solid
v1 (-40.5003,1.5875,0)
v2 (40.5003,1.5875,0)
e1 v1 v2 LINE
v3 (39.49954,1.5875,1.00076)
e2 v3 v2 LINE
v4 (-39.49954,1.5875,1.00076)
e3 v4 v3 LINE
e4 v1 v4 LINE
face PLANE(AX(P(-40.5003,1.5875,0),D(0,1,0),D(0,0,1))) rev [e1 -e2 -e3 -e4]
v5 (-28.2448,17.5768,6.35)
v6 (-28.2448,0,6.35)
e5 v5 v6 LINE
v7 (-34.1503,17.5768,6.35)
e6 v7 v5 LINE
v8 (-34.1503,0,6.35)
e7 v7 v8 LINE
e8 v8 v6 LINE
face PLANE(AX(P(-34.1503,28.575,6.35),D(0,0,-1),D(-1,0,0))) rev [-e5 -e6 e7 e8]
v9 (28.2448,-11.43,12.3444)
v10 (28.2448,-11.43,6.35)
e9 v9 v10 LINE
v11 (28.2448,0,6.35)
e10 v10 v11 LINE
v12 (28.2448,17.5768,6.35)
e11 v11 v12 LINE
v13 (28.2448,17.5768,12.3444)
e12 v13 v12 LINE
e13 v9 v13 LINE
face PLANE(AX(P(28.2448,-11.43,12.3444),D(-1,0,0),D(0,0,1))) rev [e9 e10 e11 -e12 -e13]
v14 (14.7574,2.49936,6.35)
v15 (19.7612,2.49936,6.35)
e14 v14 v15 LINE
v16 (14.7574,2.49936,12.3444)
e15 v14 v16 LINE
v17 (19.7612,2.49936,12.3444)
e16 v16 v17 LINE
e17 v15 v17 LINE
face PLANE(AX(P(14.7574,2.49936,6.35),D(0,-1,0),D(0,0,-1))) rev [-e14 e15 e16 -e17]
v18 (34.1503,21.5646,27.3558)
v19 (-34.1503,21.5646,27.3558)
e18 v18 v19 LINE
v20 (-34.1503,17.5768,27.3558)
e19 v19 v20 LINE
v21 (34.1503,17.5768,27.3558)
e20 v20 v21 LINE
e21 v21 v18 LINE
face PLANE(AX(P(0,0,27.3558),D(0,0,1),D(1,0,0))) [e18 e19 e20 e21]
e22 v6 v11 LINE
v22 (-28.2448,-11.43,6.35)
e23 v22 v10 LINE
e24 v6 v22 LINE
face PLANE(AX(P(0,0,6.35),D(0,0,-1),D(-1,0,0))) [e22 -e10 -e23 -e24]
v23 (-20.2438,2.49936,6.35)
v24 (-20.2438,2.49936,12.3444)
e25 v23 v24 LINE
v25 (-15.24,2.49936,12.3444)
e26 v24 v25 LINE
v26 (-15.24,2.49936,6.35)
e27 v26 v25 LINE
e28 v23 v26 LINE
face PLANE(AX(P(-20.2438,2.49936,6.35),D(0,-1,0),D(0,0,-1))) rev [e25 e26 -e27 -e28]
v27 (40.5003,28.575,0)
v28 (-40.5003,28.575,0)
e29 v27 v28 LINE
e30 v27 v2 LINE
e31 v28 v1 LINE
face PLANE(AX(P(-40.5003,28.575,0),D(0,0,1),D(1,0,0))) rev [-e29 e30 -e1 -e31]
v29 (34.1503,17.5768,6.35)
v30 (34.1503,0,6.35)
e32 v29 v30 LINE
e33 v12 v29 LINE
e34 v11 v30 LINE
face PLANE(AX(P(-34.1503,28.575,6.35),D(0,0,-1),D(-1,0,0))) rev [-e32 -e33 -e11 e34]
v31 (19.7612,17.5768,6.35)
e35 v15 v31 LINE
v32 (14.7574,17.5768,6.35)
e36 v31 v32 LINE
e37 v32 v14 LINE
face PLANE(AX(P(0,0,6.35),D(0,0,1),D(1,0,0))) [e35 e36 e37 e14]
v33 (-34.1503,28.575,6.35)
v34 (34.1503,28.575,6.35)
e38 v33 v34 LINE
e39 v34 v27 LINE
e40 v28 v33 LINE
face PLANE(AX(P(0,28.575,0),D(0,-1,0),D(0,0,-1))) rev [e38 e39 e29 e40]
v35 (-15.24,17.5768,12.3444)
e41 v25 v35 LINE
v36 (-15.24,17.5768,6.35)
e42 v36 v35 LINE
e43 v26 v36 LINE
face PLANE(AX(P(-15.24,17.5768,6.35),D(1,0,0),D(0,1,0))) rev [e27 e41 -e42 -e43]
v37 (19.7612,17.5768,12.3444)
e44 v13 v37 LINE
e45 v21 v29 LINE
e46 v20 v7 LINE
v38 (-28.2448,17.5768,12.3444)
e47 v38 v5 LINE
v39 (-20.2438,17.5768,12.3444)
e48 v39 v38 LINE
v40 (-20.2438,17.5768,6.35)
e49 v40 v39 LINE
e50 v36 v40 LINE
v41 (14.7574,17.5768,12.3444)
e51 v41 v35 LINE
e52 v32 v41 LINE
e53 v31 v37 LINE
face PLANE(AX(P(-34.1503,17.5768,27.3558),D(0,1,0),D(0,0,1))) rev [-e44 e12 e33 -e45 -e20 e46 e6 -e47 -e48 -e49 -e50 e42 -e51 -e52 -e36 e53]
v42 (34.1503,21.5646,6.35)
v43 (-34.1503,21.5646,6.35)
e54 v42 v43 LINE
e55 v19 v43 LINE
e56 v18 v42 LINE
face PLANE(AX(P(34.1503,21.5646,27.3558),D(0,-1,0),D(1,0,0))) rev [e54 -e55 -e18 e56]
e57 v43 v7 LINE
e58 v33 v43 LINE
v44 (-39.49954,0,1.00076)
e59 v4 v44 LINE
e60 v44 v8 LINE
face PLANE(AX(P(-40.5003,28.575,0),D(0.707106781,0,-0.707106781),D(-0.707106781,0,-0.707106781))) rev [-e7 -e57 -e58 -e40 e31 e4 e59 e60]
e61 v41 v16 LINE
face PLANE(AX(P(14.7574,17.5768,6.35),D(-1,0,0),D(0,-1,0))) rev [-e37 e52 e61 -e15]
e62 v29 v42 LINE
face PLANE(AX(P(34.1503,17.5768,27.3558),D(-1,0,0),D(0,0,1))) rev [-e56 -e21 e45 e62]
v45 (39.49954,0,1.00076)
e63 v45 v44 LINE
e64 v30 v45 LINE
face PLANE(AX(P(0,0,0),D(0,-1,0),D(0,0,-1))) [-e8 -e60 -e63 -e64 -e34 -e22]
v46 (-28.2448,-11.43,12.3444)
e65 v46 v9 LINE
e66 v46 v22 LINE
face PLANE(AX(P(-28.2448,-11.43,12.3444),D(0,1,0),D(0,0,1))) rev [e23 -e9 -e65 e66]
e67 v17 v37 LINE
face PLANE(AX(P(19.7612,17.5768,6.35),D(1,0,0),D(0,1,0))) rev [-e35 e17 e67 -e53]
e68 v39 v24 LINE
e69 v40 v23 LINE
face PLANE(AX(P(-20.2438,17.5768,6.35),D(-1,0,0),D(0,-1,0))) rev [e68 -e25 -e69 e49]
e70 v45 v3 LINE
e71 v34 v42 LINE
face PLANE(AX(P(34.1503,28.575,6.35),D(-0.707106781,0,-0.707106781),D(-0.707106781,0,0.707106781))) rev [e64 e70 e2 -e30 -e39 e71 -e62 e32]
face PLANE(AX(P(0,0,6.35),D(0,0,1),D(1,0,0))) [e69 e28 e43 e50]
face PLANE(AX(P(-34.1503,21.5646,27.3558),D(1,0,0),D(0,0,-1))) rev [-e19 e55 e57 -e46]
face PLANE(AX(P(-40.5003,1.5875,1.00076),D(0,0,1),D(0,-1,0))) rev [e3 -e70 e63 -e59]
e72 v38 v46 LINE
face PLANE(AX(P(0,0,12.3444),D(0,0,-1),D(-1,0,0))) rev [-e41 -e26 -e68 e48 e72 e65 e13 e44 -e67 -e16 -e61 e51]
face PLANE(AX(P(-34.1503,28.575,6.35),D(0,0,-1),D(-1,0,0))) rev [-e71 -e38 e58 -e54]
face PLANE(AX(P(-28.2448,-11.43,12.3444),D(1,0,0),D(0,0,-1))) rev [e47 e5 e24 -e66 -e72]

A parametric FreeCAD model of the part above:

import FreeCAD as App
import Part
import Sketcher
from FreeCAD import Vector
Q = App.Units.Quantity


def add_polygon(sketch, points):
    """Adds a closed chain of lines whose ends are joined by coincident constraints."""
    first, n = sketch.GeometryCount, len(points)
    for a, b in zip(points, points[1:] + points[:1]):
        sketch.addGeometry(Part.LineSegment(App.Vector(*a, 0), App.Vector(*b, 0)), False)
    for i in range(n):
        sketch.addConstraint(Sketcher.Constraint("Coincident", first + i, 2, first + (i + 1) % n, 1))

doc = App.newDocument("Part")
body = doc.addObject("PartDesign::Body", "Body")

sketch1 = body.newObject("Sketcher::SketchObject", "Sketch")
sketch1.AttachmentSupport = (doc.getObject("XZ_Plane"), [""])
sketch1.MapMode = "FlatFace"
add_polygon(sketch1, [(40.5003, 0), (-40.5003, 0), (-34.1503, 6.35), (34.1503, 6.35)])
sketch1.addConstraint([
    Sketcher.Constraint("Horizontal", 0),
    Sketcher.Constraint("Horizontal", 2),
    Sketcher.Constraint("Symmetric", 0, 2, 3, 2, -1, 1),
    Sketcher.Constraint("Perpendicular", 1, 3),
    Sketcher.Constraint("Equal", 1, 3),
    Sketcher.Constraint("DistanceX", 0, 2, 0, 1, Q("3.189 in")),
    Sketcher.Constraint("DistanceX", 2, 1, 2, 2, Q("2.689 in")),
])
pad1 = body.newObject("PartDesign::Pad", "Pad")
pad1.Profile = sketch1
pad1.Length = Q("1.125 in")
pad1.Reversed = True

sketch2 = body.newObject("Sketcher::SketchObject", "Sketch001")
sketch2.AttachmentSupport = (doc.getObject("YZ_Plane"), [""])
sketch2.MapMode = "FlatFace"
add_polygon(sketch2, [(1.5875, 1.00076), (0, 1.00076), (0, 0), (1.5875, 0)])
sketch2.addConstraint([
    Sketcher.Constraint("Horizontal", 0),
    Sketcher.Constraint("Vertical", 1),
    Sketcher.Constraint("Horizontal", 2),
    Sketcher.Constraint("Vertical", 3),
    Sketcher.Constraint("Coincident", 1, 2, -1, 1),
    Sketcher.Constraint("DistanceX", 0, 2, 0, 1, Q("0.0625 in")),
    Sketcher.Constraint("DistanceY", 1, 2, 1, 1, Q("0.0394 in")),
])
pocket1 = body.newObject("PartDesign::Pocket", "Pocket")
pocket1.Profile = sketch2
pocket1.Type = "ThroughAll"
pocket1.Midplane = True

sketch3 = body.newObject("Sketcher::SketchObject", "Sketch002")
sketch3.AttachmentSupport = (doc.getObject("XY_Plane"), [""])
sketch3.MapMode = "FlatFace"
sketch3.AttachmentOffset = App.Placement(Vector(0, 0, 0.25 * 25.4), App.Rotation())
add_polygon(sketch3, [(-34.1503, 21.5646), (-34.1503, 17.5768), (34.1503, 17.5768), (34.1503, 21.5646)])
sketch3.addConstraint([
    Sketcher.Constraint("Vertical", 0),
    Sketcher.Constraint("Horizontal", 1),
    Sketcher.Constraint("Vertical", 2),
    Sketcher.Constraint("Horizontal", 3),
    Sketcher.Constraint("DistanceX", 1, 1, 1, 2, Q("2.689 in")),
    Sketcher.Constraint("DistanceY", 0, 2, 0, 1, Q("0.157 in")),
    Sketcher.Constraint("DistanceY", -1, 1, 0, 2, Q("0.692 in")),
    Sketcher.Constraint("DistanceX", 0, 2, -1, 1, Q("1.3445 in")),
])
pad2 = body.newObject("PartDesign::Pad", "Pad001")
pad2.Profile = sketch3
pad2.Length = Q("0.827 in")

sketch4 = body.newObject("Sketcher::SketchObject", "Sketch003")
sketch4.AttachmentSupport = (doc.getObject("XY_Plane"), [""])
sketch4.MapMode = "FlatFace"
sketch4.AttachmentOffset = App.Placement(Vector(0, 0, 0.25 * 25.4), App.Rotation())
add_polygon(sketch4, [(-28.2448, 17.5768), (-28.2448, -11.43), (28.2448, -11.43), (28.2448, 17.5768)])
sketch4.addConstraint([
    Sketcher.Constraint("Vertical", 0),
    Sketcher.Constraint("Horizontal", 1),
    Sketcher.Constraint("Vertical", 2),
    Sketcher.Constraint("Horizontal", 3),
    Sketcher.Constraint("DistanceX", 1, 1, 1, 2, Q("2.224 in")),
    Sketcher.Constraint("DistanceY", 0, 2, 0, 1, Q("1.142 in")),
    Sketcher.Constraint("DistanceY", 0, 2, -1, 1, Q("0.45 in")),
    Sketcher.Constraint("DistanceX", 0, 2, -1, 1, Q("1.112 in")),
])
pad3 = body.newObject("PartDesign::Pad", "Pad002")
pad3.Profile = sketch4
pad3.Length = Q("0.236 in")

sketch5 = body.newObject("Sketcher::SketchObject", "Sketch004")
sketch5.AttachmentSupport = (doc.getObject("XY_Plane"), [""])
sketch5.MapMode = "FlatFace"
sketch5.AttachmentOffset = App.Placement(Vector(0, 0, 0.486 * 25.4), App.Rotation())
add_polygon(sketch5, [(-20.2438, 17.5768), (-20.2438, 2.49936), (-15.24, 2.49936), (-15.24, 17.5768)])
add_polygon(sketch5, [(14.7574, 17.5768), (14.7574, 2.49936), (19.7612, 2.49936), (19.7612, 17.5768)])
sketch5.addConstraint([
    Sketcher.Constraint("Vertical", 0),
    Sketcher.Constraint("Horizontal", 1),
    Sketcher.Constraint("Vertical", 2),
    Sketcher.Constraint("Horizontal", 3),
    Sketcher.Constraint("Vertical", 4),
    Sketcher.Constraint("Horizontal", 5),
    Sketcher.Constraint("Vertical", 6),
    Sketcher.Constraint("Horizontal", 7),
    Sketcher.Constraint("Horizontal", 1, 2, 4, 2),
    Sketcher.Constraint("Horizontal", 3, 2, 6, 2),
    Sketcher.Constraint("Equal", 3, 5),
    Sketcher.Constraint("DistanceX", 1, 2, -1, 1, Q("0.6 in")),
    Sketcher.Constraint("DistanceX", 1, 1, 1, 2, Q("0.197 in")),
    Sketcher.Constraint("DistanceY", 0, 2, 0, 1, Q("0.5936 in")),
    Sketcher.Constraint("DistanceY", -1, 1, 2, 2, Q("0.692 in")),
    Sketcher.Constraint("DistanceX", -1, 1, 4, 2, Q("0.581 in")),
])
pocket2 = body.newObject("PartDesign::Pocket", "Pocket001")
pocket2.Profile = sketch5
pocket2.Length = Q("0.236 in")

doc.recompute()
